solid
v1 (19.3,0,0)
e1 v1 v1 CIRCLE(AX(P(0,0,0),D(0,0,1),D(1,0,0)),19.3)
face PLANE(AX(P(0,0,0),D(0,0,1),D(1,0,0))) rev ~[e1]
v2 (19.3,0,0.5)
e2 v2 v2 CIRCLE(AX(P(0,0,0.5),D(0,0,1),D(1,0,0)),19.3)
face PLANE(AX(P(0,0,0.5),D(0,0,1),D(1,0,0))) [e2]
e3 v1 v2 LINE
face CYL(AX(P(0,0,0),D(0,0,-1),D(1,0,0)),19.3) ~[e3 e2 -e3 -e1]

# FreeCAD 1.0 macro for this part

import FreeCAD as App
import Part
import Sketcher
from FreeCAD import Vector

doc = App.newDocument("Part")
body = doc.addObject("PartDesign::Body", "Body")

# Sketch on XY plane
sketch1 = body.newObject("Sketcher::SketchObject", "Sketch")
sketch1.AttachmentSupport = (doc.getObject("XY_Plane"), [""])
sketch1.MapMode = "FlatFace"
sketch1.addGeometry(Part.Circle(Vector(0, 0, 0), Vector(0, 0, 1), 19.3), False)
sketch1.addConstraint([
    Sketcher.Constraint("Coincident", 0, 3, -1, 1),
    Sketcher.Constraint("Diameter", 0, 38.6),
])
pad1 = body.newObject("PartDesign::Pad", "Pad")
pad1.Profile = sketch1
pad1.Length = 0.5

doc.recompute()
